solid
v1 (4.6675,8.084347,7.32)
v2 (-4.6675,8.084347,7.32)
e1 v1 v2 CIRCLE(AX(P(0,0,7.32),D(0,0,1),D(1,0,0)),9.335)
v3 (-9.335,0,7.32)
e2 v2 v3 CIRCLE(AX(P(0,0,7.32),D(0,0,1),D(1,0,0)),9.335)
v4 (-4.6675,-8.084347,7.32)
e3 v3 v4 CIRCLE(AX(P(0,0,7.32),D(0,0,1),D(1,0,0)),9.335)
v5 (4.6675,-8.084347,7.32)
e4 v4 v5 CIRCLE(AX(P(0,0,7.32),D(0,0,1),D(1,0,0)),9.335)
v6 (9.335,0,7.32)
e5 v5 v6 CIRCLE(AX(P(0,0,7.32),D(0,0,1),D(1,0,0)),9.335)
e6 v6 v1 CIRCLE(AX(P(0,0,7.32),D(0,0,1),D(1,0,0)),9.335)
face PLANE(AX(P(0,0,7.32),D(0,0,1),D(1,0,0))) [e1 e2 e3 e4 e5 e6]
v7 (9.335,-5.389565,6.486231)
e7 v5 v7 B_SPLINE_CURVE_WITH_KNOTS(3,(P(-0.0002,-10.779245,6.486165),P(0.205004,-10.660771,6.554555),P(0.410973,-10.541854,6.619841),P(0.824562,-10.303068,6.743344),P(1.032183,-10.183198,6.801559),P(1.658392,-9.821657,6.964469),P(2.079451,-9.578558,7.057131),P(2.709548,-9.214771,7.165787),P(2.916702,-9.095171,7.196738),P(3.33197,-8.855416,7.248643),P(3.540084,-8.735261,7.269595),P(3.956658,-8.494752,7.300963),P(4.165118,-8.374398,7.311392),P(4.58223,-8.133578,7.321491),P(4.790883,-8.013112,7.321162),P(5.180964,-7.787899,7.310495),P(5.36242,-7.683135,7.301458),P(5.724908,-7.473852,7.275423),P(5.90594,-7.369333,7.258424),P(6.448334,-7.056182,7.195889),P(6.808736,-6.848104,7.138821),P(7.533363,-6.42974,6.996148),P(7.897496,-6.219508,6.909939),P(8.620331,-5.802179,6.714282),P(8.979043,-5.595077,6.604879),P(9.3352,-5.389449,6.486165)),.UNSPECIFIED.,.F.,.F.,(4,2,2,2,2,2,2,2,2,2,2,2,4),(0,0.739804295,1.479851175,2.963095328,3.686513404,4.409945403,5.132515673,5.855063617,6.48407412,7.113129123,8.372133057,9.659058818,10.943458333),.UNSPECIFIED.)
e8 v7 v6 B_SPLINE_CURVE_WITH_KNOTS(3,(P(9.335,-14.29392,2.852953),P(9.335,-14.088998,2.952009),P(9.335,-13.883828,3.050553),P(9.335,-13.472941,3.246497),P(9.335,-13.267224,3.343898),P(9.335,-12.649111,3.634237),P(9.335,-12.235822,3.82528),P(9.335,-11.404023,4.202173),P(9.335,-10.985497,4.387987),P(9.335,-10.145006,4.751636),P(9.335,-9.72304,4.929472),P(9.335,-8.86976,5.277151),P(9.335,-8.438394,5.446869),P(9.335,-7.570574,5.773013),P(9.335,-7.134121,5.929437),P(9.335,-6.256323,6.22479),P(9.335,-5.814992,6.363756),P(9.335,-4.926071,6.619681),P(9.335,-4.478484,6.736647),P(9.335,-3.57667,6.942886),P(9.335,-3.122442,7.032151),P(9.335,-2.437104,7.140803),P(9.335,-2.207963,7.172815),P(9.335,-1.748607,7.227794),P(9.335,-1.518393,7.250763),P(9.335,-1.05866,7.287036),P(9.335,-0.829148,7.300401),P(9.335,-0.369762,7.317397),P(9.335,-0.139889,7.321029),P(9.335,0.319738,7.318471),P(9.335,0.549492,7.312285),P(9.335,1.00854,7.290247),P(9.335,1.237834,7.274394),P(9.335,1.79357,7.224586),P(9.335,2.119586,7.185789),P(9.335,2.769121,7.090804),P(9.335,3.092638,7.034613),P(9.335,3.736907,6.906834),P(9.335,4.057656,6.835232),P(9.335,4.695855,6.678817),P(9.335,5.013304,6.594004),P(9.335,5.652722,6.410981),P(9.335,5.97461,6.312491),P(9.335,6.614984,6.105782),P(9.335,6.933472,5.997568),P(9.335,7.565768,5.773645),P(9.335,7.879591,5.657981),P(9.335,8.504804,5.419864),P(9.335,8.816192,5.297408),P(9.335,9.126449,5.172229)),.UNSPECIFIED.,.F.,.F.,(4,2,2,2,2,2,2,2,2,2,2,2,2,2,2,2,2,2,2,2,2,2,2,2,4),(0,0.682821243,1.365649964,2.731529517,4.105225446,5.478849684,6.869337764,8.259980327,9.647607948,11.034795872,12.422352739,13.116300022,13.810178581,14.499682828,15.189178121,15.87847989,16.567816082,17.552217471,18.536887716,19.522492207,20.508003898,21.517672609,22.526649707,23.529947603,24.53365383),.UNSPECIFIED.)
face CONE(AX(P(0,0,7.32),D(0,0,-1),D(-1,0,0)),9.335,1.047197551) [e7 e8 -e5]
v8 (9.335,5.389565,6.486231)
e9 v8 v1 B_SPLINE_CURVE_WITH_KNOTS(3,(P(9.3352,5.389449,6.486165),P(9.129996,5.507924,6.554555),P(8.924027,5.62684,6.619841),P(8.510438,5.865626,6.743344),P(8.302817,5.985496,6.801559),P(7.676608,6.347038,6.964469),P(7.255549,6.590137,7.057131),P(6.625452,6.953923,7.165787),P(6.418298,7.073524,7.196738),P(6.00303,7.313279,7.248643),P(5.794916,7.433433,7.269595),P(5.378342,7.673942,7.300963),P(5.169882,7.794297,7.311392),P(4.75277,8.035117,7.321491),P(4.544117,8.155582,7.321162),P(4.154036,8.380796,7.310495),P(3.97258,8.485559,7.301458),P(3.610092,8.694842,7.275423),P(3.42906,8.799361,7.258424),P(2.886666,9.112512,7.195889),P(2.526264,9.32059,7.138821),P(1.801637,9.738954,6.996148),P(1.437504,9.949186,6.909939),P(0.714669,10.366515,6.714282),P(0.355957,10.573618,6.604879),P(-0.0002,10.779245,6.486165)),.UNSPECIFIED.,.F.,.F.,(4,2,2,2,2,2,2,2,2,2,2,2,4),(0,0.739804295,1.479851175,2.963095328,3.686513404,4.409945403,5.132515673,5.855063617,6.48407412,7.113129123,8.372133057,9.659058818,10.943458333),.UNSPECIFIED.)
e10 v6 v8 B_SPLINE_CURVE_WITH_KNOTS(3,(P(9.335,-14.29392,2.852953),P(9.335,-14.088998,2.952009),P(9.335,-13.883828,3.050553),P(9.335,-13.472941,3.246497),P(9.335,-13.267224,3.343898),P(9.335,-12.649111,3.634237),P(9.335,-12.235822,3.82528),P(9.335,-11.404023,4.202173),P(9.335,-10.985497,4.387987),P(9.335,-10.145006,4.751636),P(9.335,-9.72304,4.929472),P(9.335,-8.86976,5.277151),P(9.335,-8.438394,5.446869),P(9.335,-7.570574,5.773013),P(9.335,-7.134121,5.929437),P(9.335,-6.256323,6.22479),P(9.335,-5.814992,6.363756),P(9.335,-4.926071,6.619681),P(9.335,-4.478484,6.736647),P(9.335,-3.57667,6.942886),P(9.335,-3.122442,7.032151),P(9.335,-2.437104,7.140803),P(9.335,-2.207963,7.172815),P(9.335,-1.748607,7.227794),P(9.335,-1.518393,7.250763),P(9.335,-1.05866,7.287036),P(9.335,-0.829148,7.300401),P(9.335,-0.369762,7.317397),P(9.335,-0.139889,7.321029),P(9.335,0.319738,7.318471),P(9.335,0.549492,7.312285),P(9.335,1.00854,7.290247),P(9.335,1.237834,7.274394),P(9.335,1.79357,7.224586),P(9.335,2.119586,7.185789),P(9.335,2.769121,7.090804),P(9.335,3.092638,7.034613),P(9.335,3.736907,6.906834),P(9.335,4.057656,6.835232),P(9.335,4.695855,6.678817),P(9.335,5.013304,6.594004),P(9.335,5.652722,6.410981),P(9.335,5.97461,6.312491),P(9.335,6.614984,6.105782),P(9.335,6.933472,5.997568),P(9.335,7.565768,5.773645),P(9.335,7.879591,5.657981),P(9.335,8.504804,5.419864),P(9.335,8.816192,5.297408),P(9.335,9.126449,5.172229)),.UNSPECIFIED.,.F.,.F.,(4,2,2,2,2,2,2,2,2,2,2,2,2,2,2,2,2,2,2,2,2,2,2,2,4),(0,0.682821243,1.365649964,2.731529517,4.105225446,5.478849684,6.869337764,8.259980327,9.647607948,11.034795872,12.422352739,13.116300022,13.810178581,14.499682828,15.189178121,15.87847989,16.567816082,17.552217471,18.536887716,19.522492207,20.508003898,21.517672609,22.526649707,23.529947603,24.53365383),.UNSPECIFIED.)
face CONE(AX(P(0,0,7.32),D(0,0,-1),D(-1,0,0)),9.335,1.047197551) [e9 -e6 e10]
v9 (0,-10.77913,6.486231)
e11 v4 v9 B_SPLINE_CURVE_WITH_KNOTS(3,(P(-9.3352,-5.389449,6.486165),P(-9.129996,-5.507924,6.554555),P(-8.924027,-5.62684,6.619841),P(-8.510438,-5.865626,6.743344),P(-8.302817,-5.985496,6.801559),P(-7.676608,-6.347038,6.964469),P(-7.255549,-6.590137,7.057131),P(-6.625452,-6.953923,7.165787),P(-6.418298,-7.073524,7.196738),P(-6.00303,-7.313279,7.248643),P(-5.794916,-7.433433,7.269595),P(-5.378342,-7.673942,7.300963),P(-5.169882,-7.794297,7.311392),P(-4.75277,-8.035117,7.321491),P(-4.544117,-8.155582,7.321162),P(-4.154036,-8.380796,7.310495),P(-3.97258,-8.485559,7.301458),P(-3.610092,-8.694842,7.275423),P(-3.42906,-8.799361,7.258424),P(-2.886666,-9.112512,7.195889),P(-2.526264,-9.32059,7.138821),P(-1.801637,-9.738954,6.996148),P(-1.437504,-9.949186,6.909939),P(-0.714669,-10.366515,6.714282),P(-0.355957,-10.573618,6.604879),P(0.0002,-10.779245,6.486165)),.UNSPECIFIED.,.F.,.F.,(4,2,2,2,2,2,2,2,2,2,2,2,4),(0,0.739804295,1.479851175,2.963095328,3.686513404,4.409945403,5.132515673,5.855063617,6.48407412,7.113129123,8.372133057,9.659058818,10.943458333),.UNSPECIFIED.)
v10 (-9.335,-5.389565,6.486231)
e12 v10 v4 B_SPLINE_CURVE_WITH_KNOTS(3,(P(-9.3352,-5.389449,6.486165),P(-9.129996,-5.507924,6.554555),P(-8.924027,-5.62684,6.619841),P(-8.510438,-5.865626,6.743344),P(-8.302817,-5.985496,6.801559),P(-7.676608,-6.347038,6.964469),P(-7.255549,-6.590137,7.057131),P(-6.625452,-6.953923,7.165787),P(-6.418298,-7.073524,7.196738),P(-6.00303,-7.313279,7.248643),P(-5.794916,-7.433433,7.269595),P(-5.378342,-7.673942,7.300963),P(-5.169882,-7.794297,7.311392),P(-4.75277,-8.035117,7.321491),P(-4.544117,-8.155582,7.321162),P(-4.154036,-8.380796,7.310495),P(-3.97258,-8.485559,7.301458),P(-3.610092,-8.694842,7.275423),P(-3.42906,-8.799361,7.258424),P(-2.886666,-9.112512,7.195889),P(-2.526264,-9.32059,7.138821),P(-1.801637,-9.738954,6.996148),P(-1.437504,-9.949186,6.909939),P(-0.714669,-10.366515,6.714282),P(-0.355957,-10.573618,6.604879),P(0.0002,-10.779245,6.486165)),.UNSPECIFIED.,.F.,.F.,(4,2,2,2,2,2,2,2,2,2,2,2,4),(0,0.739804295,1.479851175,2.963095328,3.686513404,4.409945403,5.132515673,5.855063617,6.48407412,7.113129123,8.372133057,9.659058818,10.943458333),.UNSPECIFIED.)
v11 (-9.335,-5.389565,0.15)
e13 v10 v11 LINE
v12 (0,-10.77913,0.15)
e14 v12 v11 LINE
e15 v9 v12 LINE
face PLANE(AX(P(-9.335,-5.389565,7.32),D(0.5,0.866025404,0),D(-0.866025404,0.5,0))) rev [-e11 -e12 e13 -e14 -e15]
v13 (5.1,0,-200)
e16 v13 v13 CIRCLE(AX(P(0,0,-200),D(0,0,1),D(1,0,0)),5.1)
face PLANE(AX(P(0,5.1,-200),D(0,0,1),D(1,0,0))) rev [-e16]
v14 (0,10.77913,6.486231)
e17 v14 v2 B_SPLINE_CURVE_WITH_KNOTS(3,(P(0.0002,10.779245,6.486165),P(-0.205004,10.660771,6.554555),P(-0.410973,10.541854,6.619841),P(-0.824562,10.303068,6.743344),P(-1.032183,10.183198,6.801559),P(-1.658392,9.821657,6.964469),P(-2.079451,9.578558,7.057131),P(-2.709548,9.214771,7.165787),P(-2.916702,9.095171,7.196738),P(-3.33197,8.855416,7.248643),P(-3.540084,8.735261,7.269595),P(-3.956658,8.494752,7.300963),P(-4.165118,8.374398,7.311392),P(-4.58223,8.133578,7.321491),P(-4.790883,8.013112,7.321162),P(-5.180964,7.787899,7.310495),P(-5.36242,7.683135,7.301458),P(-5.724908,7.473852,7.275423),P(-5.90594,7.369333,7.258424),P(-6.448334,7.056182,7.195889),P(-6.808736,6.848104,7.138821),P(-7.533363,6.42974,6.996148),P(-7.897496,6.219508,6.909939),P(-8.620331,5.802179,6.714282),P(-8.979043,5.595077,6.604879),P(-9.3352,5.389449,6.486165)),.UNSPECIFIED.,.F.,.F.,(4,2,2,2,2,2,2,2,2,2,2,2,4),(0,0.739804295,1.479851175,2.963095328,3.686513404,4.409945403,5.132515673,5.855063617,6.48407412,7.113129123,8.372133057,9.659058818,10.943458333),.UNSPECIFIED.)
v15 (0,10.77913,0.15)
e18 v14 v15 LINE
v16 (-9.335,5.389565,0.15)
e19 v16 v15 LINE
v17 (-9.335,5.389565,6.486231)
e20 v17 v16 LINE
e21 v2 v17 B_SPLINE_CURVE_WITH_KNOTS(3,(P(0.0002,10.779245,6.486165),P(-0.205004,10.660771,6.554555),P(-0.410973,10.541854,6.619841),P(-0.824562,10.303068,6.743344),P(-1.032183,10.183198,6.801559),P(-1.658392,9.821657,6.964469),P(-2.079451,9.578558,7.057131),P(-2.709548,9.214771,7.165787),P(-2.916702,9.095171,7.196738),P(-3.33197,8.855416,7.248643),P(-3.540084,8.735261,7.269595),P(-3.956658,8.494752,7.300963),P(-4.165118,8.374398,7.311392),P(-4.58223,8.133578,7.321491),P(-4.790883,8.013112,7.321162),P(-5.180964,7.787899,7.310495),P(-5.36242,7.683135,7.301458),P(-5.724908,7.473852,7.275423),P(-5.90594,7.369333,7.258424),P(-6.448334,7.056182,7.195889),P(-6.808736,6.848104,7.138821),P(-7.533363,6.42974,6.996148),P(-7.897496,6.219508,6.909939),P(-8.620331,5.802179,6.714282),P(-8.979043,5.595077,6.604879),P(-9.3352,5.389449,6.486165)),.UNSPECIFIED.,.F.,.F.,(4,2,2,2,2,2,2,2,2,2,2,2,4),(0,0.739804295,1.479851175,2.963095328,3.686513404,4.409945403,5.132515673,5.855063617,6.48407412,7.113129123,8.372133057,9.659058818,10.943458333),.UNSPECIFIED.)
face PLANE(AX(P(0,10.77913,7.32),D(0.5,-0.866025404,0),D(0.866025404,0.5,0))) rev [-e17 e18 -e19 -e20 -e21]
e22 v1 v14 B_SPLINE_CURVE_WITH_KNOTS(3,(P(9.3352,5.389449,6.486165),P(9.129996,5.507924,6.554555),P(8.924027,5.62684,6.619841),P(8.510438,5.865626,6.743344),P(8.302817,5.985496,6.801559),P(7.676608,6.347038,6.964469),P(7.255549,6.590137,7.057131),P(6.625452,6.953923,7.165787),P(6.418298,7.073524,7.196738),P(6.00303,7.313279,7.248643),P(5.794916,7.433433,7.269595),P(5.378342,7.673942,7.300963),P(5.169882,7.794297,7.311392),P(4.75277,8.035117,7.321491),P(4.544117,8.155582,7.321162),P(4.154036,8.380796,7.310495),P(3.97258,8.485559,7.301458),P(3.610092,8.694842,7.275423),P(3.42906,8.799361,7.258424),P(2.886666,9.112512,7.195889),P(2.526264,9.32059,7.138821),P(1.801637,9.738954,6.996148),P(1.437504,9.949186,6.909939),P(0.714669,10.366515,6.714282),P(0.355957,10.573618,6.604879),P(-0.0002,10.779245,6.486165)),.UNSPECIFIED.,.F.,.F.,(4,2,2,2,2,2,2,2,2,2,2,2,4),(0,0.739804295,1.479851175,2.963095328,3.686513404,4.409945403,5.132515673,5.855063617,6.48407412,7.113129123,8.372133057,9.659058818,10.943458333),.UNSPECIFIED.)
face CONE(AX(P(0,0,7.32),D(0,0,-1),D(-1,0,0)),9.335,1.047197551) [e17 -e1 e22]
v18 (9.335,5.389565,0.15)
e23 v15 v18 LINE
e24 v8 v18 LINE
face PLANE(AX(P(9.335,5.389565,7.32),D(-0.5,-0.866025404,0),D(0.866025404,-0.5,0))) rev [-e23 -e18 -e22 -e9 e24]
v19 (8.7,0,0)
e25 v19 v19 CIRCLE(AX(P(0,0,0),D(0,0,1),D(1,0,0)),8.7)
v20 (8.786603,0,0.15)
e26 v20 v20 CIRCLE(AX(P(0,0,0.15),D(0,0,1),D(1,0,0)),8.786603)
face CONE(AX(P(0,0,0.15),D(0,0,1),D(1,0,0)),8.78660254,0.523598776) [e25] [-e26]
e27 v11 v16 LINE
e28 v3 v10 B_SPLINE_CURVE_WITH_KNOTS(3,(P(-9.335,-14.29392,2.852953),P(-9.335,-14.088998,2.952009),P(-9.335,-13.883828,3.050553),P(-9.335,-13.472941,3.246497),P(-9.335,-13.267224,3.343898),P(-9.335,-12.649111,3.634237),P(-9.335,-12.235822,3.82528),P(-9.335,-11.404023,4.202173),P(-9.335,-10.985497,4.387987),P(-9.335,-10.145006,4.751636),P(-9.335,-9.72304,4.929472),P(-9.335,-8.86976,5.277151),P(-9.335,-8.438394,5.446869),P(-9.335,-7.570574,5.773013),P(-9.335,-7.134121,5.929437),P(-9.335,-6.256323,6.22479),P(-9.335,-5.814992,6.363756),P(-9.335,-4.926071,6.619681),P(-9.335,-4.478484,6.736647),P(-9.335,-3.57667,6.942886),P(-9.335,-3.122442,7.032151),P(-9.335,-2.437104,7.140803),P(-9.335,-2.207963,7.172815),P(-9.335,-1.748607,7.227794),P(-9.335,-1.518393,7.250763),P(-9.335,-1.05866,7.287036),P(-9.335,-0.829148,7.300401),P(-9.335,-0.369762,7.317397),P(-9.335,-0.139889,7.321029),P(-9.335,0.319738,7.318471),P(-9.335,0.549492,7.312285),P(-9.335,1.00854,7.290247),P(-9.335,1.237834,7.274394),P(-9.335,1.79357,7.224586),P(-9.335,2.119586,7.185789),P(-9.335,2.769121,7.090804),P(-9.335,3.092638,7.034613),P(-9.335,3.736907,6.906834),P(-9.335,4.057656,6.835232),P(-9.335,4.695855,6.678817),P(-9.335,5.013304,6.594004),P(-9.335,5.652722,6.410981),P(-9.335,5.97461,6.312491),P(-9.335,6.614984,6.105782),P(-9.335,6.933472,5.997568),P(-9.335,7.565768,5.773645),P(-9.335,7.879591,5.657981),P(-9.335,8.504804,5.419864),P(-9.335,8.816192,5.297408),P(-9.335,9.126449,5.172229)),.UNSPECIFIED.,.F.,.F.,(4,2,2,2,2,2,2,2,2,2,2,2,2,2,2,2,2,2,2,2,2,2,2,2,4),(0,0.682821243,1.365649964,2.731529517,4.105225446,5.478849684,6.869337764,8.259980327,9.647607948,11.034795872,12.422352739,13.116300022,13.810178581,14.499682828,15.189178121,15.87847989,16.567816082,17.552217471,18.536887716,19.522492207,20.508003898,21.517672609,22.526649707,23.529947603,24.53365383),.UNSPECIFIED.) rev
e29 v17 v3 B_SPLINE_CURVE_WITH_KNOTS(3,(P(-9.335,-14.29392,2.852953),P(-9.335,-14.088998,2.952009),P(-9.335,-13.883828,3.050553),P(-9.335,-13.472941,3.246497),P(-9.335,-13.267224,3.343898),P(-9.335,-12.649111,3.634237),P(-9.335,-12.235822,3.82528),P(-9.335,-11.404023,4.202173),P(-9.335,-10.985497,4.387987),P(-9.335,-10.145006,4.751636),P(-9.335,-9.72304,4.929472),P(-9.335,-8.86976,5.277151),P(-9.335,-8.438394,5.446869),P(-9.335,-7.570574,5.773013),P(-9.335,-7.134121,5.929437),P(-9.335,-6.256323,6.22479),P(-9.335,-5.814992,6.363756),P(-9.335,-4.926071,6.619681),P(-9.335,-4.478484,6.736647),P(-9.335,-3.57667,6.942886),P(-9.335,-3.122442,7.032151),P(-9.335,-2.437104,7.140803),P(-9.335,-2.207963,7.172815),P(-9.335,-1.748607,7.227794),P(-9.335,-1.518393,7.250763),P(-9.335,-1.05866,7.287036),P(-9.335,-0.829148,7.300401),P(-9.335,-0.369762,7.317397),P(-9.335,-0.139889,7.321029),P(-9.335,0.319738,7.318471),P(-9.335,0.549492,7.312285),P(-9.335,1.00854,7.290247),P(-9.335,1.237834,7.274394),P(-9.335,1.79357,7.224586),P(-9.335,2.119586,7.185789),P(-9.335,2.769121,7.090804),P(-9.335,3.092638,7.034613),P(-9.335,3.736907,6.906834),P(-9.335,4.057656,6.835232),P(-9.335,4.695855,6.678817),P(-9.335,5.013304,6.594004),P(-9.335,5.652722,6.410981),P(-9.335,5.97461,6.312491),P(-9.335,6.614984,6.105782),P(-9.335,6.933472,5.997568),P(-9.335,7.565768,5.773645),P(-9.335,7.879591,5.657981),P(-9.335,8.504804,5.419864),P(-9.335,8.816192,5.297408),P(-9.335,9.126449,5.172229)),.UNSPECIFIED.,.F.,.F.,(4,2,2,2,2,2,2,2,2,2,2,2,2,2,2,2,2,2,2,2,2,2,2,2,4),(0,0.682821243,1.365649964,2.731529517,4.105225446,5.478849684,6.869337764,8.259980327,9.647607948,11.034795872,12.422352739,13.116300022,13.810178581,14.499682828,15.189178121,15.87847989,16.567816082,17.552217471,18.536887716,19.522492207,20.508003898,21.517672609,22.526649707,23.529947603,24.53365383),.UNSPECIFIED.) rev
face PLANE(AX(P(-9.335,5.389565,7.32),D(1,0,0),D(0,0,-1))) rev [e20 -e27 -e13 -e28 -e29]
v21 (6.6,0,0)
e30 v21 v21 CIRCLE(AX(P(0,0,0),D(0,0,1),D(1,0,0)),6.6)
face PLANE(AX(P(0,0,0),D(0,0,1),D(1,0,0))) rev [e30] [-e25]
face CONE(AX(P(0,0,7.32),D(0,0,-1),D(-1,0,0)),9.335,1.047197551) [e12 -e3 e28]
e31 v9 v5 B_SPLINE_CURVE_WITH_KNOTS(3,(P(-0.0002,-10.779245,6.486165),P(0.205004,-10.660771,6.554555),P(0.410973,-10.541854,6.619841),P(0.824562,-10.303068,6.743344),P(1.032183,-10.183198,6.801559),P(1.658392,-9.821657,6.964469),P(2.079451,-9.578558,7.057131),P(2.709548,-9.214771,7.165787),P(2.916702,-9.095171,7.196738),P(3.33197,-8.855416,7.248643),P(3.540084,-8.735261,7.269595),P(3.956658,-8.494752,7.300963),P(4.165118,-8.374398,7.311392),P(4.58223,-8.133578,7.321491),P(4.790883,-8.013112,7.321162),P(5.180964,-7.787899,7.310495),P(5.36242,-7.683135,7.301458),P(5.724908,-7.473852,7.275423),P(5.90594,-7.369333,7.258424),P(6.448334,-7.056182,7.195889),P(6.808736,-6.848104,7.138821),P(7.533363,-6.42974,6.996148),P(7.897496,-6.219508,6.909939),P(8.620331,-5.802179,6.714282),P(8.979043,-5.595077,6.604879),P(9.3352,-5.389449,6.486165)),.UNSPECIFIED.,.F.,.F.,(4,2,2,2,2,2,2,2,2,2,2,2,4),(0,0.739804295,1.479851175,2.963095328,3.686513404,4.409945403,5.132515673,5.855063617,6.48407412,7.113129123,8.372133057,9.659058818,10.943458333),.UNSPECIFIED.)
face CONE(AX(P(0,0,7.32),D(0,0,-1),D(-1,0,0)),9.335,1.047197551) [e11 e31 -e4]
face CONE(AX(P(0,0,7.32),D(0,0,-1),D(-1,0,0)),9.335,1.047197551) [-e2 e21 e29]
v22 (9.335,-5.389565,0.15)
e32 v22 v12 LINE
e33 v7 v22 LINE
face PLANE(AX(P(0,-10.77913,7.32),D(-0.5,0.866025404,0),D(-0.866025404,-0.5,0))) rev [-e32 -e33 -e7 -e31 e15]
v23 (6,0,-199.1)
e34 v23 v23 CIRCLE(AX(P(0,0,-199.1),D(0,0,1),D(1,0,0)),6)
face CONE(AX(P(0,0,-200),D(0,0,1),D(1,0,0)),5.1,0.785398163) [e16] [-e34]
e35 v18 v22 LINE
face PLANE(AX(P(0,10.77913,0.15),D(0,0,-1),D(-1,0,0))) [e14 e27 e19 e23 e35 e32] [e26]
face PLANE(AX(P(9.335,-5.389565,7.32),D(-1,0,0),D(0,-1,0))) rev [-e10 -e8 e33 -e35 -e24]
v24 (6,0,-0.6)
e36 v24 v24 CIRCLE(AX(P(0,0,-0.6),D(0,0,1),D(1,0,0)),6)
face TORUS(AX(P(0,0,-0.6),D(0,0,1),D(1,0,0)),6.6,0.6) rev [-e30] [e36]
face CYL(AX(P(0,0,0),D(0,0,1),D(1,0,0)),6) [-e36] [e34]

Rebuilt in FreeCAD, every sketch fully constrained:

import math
import FreeCAD as App
import Part
import Sketcher
Q = App.Units.Quantity


def add_polygon(sketch, points):
    """Adds a closed chain of lines whose ends are joined by coincident constraints."""
    first, n = sketch.GeometryCount, len(points)
    for a, b in zip(points, points[1:] + points[:1]):
        sketch.addGeometry(Part.LineSegment(App.Vector(*a, 0), App.Vector(*b, 0)), False)
    for i in range(n):
        sketch.addConstraint(Sketcher.Constraint("Coincident", first + i, 2, first + (i + 1) % n, 1))

doc = App.newDocument("Part")
params = doc.addObject("Spreadsheet::Sheet", "Params")
for row, (alias, value) in enumerate([
    ("pad1_length", "7.32 mm"),
    ("sketch2_radius", "0.6 mm"),
    ("sketch2_height", "200 mm"),
    ("sketch2_width", "6.6 mm"),
    ("sketch2_width2", "5.1 mm"),
    ("revolution_angle", "360 deg"),
    ("sketch3_height", "0.15 mm"),
    ("groove_angle", "360 deg"),
], start=1):
    params.set(f"A{row}", alias)
    params.set(f"B{row}", "=" + value)
    params.setAlias(f"B{row}", alias)

body = doc.addObject("PartDesign::Body", "Body")

# Sketch on XY plane
sketch1 = body.newObject("Sketcher::SketchObject", "Sketch")
sketch1.AttachmentSupport = (doc.getObject("XY_Plane"), [""])
sketch1.MapMode = "FlatFace"
add_polygon(sketch1, [(0, 10.77913), (-9.335, 5.389565), (-9.335, -5.389565), (0, -10.77913), (9.335, -5.389565), (9.335, 5.389565)])  # lines 0-5
sketch1.addConstraint([
    Sketcher.Constraint("Vertical", 1),
    Sketcher.Constraint("Vertical", 4),
    Sketcher.Constraint("Symmetric", 0, 2, 3, 2, -1, 1),
    Sketcher.Constraint("Symmetric", 2, 2, 5, 2, -1, 1),
    Sketcher.Constraint("PointOnObject", 2, 2, -2),
    Sketcher.Constraint("Parallel", 2, 5),
    Sketcher.Constraint("Horizontal", 1, 2, 3, 2),
    Sketcher.Constraint("Angle", 0, Q("-150 deg")),
    Sketcher.Constraint("DistanceX", 1, 2, 3, 2, Q("18.67 mm")),
    Sketcher.Constraint("DistanceY", 1, 2, 1, 1, Q("10.77913 mm")),
])
pad1 = body.newObject("PartDesign::Pad", "Pad")
pad1.Profile = sketch1
pad1.setExpression("Length", "Params.pad1_length")

# Sketch on YZ plane
sketch2 = body.newObject("Sketcher::SketchObject", "Sketch001")
sketch2.AttachmentSupport = (doc.getObject("YZ_Plane"), [""])
sketch2.MapMode = "FlatFace"
sketch2.addGeometry([
    Part.LineSegment(App.Vector(6.6, 0, 0), App.Vector(0, 0, 0)),  # 0
    Part.LineSegment(App.Vector(0, 0, 0), App.Vector(0, -200, 0)),  # 1
    Part.LineSegment(App.Vector(0, -200, 0), App.Vector(5.1, -200, 0)),  # 2
    Part.LineSegment(App.Vector(5.1, -200, 0), App.Vector(6, -199.1, 0)),  # 3
    Part.LineSegment(App.Vector(6, -199.1, 0), App.Vector(6, -0.6, 0)),  # 4
    Part.ArcOfCircle(Part.Circle(App.Vector(6.6, -0.6, 0), App.Vector(0, 0, 1), 0.6), math.radians(90), math.radians(180)),  # 5
], False)
sketch2.addConstraint([
    Sketcher.Constraint("Coincident", 0, 2, 1, 1),
    Sketcher.Constraint("Coincident", 1, 2, 2, 1),
    Sketcher.Constraint("Coincident", 2, 2, 3, 1),
    Sketcher.Constraint("Coincident", 3, 2, 4, 1),
    Sketcher.Constraint("Tangent", 4, 2, 5, 2),
    Sketcher.Constraint("Tangent", 5, 1, 0, 1),
    Sketcher.Constraint("Horizontal", 0),
    Sketcher.Constraint("Vertical", 1),
    Sketcher.Constraint("Horizontal", 2),
    Sketcher.Constraint("Vertical", 4),
    Sketcher.Constraint("Coincident", 0, 2, -1, 1),
    Sketcher.Constraint("Radius", 5, Q("0.6 mm")),
    Sketcher.Constraint("DistanceY", 1, 2, 1, 1, Q("200 mm")),
    Sketcher.Constraint("Angle", 3, Q("45 deg")),
    Sketcher.Constraint("DistanceX", 0, 2, 0, 1, Q("6.6 mm")),
    Sketcher.Constraint("DistanceX", 2, 1, 2, 2, Q("5.1 mm")),
])
sketch2.setExpression("Constraints[11]", "Params.sketch2_radius")
sketch2.setExpression("Constraints[12]", "Params.sketch2_height")
sketch2.setExpression("Constraints[14]", "Params.sketch2_width")
sketch2.setExpression("Constraints[15]", "Params.sketch2_width2")
revolution = body.newObject("PartDesign::Revolution", "Revolution")
revolution.Profile = sketch2
revolution.ReferenceAxis = (sketch2, ["V_Axis"])
revolution.setExpression("Angle", "Params.revolution_angle")

# Sketch on YZ plane
sketch3 = body.newObject("Sketcher::SketchObject", "Sketch002")
sketch3.AttachmentSupport = (doc.getObject("YZ_Plane"), [""])
sketch3.MapMode = "FlatFace"
add_polygon(sketch3, [(10.77913, 6.486231), (10.77913, 7.32), (9.335, 7.32)])  # lines 0-2
add_polygon(sketch3, [(10.77913, 0.15), (8.786603, 0.15), (8.7, 0), (10.77913, 0)])  # lines 3-6
sketch3.addConstraint([
    Sketcher.Constraint("Vertical", 0),
    Sketcher.Constraint("Horizontal", 1),
    Sketcher.Constraint("Horizontal", 3),
    Sketcher.Constraint("Horizontal", 5),
    Sketcher.Constraint("Vertical", 6),
    Sketcher.Constraint("PointOnObject", 4, 2, -1),
    Sketcher.Constraint("Perpendicular", 2, 4),
    Sketcher.Constraint("Vertical", 2, 2, 5, 2),
    Sketcher.Constraint("Angle", 2, Q("-30 deg")),
    Sketcher.Constraint("DistanceY", 6, 1, 6, 2, Q("0.15 mm")),
    Sketcher.Constraint("DistanceX", -1, 1, 4, 2, Q("8.7 mm")),
    Sketcher.Constraint("DistanceY", -1, 1, 0, 2, Q("7.32 mm")),
    Sketcher.Constraint("DistanceX", -1, 1, 1, 2, Q("9.335 mm")),
    Sketcher.Constraint("DistanceX", 1, 2, 1, 1, Q("1.44413 mm")),
])
sketch3.setExpression("Constraints[16]", "Params.sketch3_height")
groove = body.newObject("PartDesign::Groove", "Groove")
groove.Profile = sketch3
groove.ReferenceAxis = (sketch3, ["V_Axis"])
groove.setExpression("Angle", "Params.groove_angle")

doc.recompute()
